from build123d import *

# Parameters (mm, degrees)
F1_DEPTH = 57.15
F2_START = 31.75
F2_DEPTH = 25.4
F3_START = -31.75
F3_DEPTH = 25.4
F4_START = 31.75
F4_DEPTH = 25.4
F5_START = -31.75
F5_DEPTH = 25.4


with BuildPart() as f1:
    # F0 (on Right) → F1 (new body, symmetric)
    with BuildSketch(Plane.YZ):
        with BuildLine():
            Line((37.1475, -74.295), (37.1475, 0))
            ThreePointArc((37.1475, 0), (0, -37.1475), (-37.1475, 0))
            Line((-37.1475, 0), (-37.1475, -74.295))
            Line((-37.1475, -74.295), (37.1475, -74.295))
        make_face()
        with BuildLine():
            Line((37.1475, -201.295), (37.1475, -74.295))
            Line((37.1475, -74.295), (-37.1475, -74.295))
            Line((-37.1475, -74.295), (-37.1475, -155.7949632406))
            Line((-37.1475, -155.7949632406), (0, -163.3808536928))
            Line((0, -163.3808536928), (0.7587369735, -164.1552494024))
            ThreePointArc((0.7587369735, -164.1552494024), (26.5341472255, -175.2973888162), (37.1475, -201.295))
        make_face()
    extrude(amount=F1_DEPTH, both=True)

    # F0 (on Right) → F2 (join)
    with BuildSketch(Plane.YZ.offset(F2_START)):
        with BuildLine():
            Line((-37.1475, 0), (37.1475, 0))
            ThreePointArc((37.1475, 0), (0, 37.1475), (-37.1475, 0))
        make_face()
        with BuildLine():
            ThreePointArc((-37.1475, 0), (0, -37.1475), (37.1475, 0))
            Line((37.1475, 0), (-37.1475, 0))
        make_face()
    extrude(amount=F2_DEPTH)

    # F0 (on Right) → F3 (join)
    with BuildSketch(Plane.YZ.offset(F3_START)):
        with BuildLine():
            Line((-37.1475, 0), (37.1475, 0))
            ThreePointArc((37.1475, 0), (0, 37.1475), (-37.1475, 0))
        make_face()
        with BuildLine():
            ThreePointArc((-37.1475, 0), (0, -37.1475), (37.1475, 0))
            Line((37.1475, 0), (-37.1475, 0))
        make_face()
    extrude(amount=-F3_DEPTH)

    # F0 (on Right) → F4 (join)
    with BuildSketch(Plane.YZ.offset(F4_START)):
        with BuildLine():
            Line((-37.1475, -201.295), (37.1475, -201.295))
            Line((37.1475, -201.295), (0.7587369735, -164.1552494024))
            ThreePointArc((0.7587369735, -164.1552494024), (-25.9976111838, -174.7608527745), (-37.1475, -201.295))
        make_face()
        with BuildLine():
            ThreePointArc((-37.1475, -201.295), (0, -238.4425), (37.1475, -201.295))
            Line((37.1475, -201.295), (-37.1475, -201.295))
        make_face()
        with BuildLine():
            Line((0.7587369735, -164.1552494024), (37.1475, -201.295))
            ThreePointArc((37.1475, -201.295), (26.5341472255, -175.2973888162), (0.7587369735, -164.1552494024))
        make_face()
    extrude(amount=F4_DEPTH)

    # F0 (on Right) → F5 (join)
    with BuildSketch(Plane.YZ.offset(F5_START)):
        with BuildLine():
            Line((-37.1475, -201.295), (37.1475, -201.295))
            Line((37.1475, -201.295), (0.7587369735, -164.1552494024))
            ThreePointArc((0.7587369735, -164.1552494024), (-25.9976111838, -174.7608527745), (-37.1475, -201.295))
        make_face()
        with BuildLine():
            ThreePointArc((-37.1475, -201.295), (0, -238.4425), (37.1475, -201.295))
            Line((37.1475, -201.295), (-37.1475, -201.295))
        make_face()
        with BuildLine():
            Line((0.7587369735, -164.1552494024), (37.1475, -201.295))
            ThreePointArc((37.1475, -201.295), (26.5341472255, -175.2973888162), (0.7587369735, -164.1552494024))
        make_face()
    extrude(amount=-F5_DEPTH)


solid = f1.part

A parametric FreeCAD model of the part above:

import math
import FreeCAD as App
import Part
import Sketcher
Q = App.Units.Quantity

doc = App.newDocument("Part")
body = doc.addObject("PartDesign::Body", "Body")

sketch1 = body.newObject("Sketcher::SketchObject", "Sketch")
sketch1.AttachmentSupport = (doc.getObject("YZ_Plane"), [""])
sketch1.MapMode = "FlatFace"
sketch1.addGeometry(Part.ArcOfCircle(Part.Circle(App.Vector(0, 0, 0), App.Vector(0, 0, 1), 37.1), math.radians(180), math.radians(360)), False)
sketch1.addGeometry(Part.LineSegment(App.Vector(-37.1, 0, 0), App.Vector(-37.1, -155.8, 0)), False)
sketch1.addGeometry(Part.LineSegment(App.Vector(-37.1, -155.8, 0), App.Vector(0, -163.4, 0)), False)
sketch1.addGeometry(Part.LineSegment(App.Vector(0, -163.4, 0), App.Vector(0.8, -164.2, 0)), False)
sketch1.addGeometry(Part.ArcOfCircle(Part.Circle(App.Vector(0, -201.3, 0), App.Vector(0, 0, 1), 37.1), math.radians(0), math.radians(89)), False)
sketch1.addGeometry(Part.LineSegment(App.Vector(37.1, -201.3, 0), App.Vector(37.1, 0, 0)), False)
sketch1.addConstraint(Sketcher.Constraint("Tangent", 0, 1, 1, 1))
sketch1.addConstraint(Sketcher.Constraint("Coincident", 1, 2, 2, 1))
sketch1.addConstraint(Sketcher.Constraint("Coincident", 2, 2, 3, 1))
sketch1.addConstraint(Sketcher.Constraint("Coincident", 3, 2, 4, 2))
sketch1.addConstraint(Sketcher.Constraint("Tangent", 4, 1, 5, 1))
sketch1.addConstraint(Sketcher.Constraint("Tangent", 5, 2, 0, 2))
sketch1.addConstraint(Sketcher.Constraint("Vertical", 1))
sketch1.addConstraint(Sketcher.Constraint("Vertical", 5))
sketch1.addConstraint(Sketcher.Constraint("Coincident", 0, 3, -1, 1))
sketch1.addConstraint(Sketcher.Constraint("Equal", 0, 4))
sketch1.addConstraint(Sketcher.Constraint("PointOnObject", 2, 2, -2))
sketch1.addConstraint(Sketcher.Constraint("Radius", 0, Q("1.4625 in")))
sketch1.addConstraint(Sketcher.Constraint("DistanceY", 5, 1, 5, 2, Q("7.925 in")))
sketch1.addConstraint(Sketcher.Constraint("DistanceY", 1, 2, 1, 1, 155.794963))
sketch1.addConstraint(Sketcher.Constraint("DistanceY", 3, 2, -1, 1, 164.155249))
sketch1.addConstraint(Sketcher.Constraint("DistanceY", 2, 2, 1, 2, 7.58589))
pad1 = body.newObject("PartDesign::Pad", "Pad")
pad1.Profile = sketch1
pad1.Length = Q("4.5 in")
pad1.Midplane = True

sketch2 = body.newObject("Sketcher::SketchObject", "Sketch001")
sketch2.AttachmentSupport = (doc.getObject("YZ_Plane"), [""])
sketch2.MapMode = "FlatFace"
sketch2.AttachmentOffset = App.Placement(App.Vector(0, 0, 1.25 * 25.4), App.Rotation())
sketch2.addGeometry(Part.Circle(App.Vector(0, 0, 0), App.Vector(0, 0, 1), 37), False)
sketch2.addConstraint(Sketcher.Constraint("Coincident", 0, 3, -1, 1))
sketch2.addConstraint(Sketcher.Constraint("Diameter", 0, Q("2.925 in")))
pad2 = body.newObject("PartDesign::Pad", "Pad001")
pad2.Profile = sketch2
pad2.Length = Q("1 in")

sketch3 = body.newObject("Sketcher::SketchObject", "Sketch002")
sketch3.AttachmentSupport = (doc.getObject("YZ_Plane"), [""])
sketch3.MapMode = "FlatFace"
sketch3.AttachmentOffset = App.Placement(App.Vector(0, 0, -1.25 * 25.4), App.Rotation())
sketch3.addGeometry(Part.Circle(App.Vector(0, 0, 0), App.Vector(0, 0, 1), 37), False)
sketch3.addConstraint(Sketcher.Constraint("Coincident", 0, 3, -1, 1))
sketch3.addConstraint(Sketcher.Constraint("Diameter", 0, Q("2.925 in")))
pad3 = body.newObject("PartDesign::Pad", "Pad002")
pad3.Profile = sketch3
pad3.Length = Q("1 in")
pad3.Reversed = True

sketch4 = body.newObject("Sketcher::SketchObject", "Sketch003")
sketch4.AttachmentSupport = (doc.getObject("YZ_Plane"), [""])
sketch4.MapMode = "FlatFace"
sketch4.AttachmentOffset = App.Placement(App.Vector(0, 0, 1.25 * 25.4), App.Rotation())
sketch4.addGeometry(Part.Circle(App.Vector(0, -201, 0), App.Vector(0, 0, 1), 37), False)
sketch4.addConstraint(Sketcher.Constraint("PointOnObject", 0, 3, -2))
sketch4.addConstraint(Sketcher.Constraint("Diameter", 0, Q("2.925 in")))
sketch4.addConstraint(Sketcher.Constraint("DistanceY", 0, 3, -1, 1, Q("7.925 in")))
pad4 = body.newObject("PartDesign::Pad", "Pad003")
pad4.Profile = sketch4
pad4.Length = Q("1 in")

sketch5 = body.newObject("Sketcher::SketchObject", "Sketch004")
sketch5.AttachmentSupport = (doc.getObject("YZ_Plane"), [""])
sketch5.MapMode = "FlatFace"
sketch5.AttachmentOffset = App.Placement(App.Vector(0, 0, -1.25 * 25.4), App.Rotation())
sketch5.addGeometry(Part.Circle(App.Vector(0, -201, 0), App.Vector(0, 0, 1), 37), False)
sketch5.addConstraint(Sketcher.Constraint("PointOnObject", 0, 3, -2))
sketch5.addConstraint(Sketcher.Constraint("Diameter", 0, Q("2.925 in")))
sketch5.addConstraint(Sketcher.Constraint("DistanceY", 0, 3, -1, 1, Q("7.925 in")))
pad5 = body.newObject("PartDesign::Pad", "Pad004")
pad5.Profile = sketch5
pad5.Length = Q("1 in")
pad5.Reversed = True

doc.recompute()
